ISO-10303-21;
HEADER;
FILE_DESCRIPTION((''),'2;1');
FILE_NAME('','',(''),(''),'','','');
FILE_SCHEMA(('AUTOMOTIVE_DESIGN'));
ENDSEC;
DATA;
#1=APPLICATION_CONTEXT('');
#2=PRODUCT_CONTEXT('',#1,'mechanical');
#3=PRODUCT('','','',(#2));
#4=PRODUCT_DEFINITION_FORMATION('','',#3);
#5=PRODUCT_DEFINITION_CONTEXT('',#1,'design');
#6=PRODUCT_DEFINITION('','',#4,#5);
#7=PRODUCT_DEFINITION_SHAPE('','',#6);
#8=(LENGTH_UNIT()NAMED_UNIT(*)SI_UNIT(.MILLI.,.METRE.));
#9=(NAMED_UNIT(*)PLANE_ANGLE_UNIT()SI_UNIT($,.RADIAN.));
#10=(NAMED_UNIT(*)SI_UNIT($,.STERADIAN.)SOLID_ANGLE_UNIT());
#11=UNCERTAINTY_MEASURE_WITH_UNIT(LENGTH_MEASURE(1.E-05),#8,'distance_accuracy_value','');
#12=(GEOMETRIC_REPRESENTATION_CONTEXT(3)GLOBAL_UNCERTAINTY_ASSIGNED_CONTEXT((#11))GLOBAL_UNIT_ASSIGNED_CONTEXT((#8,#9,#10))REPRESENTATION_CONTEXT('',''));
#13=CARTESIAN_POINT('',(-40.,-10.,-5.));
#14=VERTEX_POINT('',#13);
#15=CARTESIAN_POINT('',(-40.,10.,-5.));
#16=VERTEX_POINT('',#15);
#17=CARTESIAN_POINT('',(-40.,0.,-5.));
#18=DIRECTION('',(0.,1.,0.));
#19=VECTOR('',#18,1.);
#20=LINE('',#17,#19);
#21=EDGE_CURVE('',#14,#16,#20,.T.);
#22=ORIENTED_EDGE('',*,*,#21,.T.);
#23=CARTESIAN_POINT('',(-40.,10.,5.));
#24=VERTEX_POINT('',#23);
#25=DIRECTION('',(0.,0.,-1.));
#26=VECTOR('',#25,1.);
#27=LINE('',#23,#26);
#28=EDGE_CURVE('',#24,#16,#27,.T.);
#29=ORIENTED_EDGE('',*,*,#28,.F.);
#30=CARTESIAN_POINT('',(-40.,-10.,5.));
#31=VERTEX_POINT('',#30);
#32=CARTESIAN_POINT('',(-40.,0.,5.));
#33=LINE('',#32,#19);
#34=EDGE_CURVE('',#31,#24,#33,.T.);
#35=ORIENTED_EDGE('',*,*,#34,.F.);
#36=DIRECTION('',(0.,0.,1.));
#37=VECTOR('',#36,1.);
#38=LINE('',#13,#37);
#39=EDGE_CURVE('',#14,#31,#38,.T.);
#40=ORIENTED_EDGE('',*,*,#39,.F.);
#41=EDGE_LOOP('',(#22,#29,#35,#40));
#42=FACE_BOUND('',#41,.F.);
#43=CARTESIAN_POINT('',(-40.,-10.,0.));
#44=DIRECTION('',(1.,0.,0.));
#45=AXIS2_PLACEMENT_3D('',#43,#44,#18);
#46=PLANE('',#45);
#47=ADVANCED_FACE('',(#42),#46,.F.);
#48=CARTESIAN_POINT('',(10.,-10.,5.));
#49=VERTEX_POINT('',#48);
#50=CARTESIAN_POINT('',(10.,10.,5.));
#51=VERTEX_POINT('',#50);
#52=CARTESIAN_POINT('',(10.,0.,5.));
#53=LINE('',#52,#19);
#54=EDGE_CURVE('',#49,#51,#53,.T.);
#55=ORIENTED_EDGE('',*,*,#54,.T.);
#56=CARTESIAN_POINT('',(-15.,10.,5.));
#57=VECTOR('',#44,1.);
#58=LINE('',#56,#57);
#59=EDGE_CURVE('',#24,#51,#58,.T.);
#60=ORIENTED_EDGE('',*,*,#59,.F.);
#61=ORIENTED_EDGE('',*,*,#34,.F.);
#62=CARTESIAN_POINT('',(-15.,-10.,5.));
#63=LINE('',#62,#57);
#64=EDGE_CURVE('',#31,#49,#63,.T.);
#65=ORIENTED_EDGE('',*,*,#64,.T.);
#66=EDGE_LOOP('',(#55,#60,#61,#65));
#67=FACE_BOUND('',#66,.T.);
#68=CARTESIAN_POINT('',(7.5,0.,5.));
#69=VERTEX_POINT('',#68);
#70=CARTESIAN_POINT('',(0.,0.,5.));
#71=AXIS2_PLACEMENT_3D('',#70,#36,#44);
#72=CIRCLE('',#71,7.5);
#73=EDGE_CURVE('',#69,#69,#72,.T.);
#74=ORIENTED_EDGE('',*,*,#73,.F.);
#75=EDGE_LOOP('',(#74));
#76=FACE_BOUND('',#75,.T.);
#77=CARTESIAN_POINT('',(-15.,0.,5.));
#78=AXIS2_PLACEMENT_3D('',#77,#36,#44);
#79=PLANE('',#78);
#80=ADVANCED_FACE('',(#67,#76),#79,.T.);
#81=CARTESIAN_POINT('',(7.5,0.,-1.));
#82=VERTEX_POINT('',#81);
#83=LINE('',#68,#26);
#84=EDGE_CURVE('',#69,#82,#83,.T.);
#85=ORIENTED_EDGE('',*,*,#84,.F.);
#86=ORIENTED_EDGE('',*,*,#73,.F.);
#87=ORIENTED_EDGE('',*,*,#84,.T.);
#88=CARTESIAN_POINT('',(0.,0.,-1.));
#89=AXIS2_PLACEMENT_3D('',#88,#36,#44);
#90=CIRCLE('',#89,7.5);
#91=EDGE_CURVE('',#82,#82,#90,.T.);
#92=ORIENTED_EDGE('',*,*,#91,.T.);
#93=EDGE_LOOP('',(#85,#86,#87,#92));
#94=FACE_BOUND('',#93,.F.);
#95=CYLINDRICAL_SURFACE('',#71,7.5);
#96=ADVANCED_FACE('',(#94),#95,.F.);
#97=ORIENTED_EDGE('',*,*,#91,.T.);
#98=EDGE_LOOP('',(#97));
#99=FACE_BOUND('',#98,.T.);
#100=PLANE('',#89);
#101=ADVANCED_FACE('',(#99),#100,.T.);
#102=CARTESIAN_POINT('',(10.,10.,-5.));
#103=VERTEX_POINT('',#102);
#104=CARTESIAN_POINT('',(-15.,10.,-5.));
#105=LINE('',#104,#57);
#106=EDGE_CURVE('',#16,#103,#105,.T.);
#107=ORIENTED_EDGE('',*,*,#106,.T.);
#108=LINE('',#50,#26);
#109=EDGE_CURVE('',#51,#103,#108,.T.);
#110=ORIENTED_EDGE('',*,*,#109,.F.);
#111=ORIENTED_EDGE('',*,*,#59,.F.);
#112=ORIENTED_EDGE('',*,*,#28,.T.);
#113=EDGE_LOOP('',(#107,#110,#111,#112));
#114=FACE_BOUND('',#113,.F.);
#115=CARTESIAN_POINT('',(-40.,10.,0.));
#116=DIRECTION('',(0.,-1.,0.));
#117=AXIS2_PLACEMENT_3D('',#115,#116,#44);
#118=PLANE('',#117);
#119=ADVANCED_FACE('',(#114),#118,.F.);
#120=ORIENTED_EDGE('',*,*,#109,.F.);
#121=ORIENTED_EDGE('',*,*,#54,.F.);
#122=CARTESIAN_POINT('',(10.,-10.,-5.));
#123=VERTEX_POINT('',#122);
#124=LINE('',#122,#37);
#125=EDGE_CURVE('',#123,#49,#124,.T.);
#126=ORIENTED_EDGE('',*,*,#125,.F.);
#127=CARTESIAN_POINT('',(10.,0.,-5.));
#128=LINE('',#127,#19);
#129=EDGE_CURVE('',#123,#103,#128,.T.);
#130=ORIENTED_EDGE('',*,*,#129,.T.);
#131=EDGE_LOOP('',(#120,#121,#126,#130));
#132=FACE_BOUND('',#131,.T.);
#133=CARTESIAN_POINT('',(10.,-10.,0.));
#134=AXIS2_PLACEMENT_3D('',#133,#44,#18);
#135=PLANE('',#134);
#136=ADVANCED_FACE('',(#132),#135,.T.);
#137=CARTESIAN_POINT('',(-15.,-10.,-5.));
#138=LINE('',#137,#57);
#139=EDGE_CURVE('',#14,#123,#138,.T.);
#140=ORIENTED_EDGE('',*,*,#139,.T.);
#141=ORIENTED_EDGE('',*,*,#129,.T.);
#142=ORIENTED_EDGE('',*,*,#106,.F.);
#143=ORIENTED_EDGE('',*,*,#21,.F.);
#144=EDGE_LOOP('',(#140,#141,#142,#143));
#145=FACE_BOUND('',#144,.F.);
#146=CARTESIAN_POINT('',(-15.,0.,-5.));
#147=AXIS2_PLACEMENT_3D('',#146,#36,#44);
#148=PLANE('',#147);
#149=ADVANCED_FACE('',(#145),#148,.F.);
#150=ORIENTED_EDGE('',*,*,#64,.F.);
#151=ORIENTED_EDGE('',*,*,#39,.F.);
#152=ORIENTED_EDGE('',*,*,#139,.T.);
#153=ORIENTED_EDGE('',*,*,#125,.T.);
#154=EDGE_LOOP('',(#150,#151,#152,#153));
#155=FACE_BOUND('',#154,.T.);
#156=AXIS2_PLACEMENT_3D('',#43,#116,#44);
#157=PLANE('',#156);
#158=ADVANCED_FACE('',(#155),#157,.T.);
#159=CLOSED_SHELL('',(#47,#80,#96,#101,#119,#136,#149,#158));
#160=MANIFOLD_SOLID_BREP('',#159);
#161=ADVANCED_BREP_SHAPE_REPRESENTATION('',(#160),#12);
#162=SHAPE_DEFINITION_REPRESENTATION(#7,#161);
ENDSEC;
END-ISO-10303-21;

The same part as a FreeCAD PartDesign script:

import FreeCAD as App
import Part
import Sketcher
from FreeCAD import Vector

doc = App.newDocument("Part")
params = doc.addObject("Spreadsheet::Sheet", "Params")
for row, (alias, value) in enumerate([
    ("sketch1_width", "50 mm"),
    ("sketch1_height", "20 mm"),
    ("pad1_length", "10 mm"),
    ("sketch2_diameter", "15 mm"),
    ("pocket1_length", "6 mm"),
], start=1):
    params.set(f"A{row}", alias)
    params.set(f"B{row}", "=" + value)
    params.setAlias(f"B{row}", alias)

body = doc.addObject("PartDesign::Body", "Body")

# Sketch on XY plane
sketch1 = body.newObject("Sketcher::SketchObject", "Sketch")
sketch1.AttachmentSupport = (doc.getObject("XY_Plane"), [""])
sketch1.MapMode = "FlatFace"
sketch1.addGeometry([
    Part.LineSegment(Vector(-40, 10, 0), Vector(-40, -10, 0)),
    Part.LineSegment(Vector(-40, -10, 0), Vector(10, -10, 0)),
    Part.LineSegment(Vector(10, -10, 0), Vector(10, 10, 0)),
    Part.LineSegment(Vector(10, 10, 0), Vector(-40, 10, 0)),
], False)
sketch1.addConstraint([
    Sketcher.Constraint("Coincident", 0, 2, 1, 1),
    Sketcher.Constraint("Coincident", 1, 2, 2, 1),
    Sketcher.Constraint("Coincident", 2, 2, 3, 1),
    Sketcher.Constraint("Coincident", 3, 2, 0, 1),
    Sketcher.Constraint("Vertical", 0),
    Sketcher.Constraint("Horizontal", 1),
    Sketcher.Constraint("Vertical", 2),
    Sketcher.Constraint("Horizontal", 3),
    Sketcher.Constraint("DistanceX", 1, 1, 1, 2, 50.0),
    Sketcher.Constraint("DistanceY", 0, 2, 0, 1, 20.0),
    Sketcher.Constraint("DistanceX", 0, 2, -1, 1, 40.0),
    Sketcher.Constraint("DistanceY", 0, 2, -1, 1, 10.0),
])
sketch1.setExpression("Constraints[8]", "Params.sketch1_width")
sketch1.setExpression("Constraints[9]", "Params.sketch1_height")
pad1 = body.newObject("PartDesign::Pad", "Pad")
pad1.Profile = sketch1
pad1.setExpression("Length", "Params.pad1_length")
pad1.Midplane = True

# Sketch on XY plane
sketch2 = body.newObject("Sketcher::SketchObject", "Sketch001")
sketch2.AttachmentSupport = (doc.getObject("XY_Plane"), [""])
sketch2.MapMode = "FlatFace"
sketch2.AttachmentOffset = App.Placement(Vector(0, 0, 5), App.Rotation())
sketch2.addGeometry(Part.Circle(Vector(0, 0, 0), Vector(0, 0, 1), 7.5), False)
sketch2.addConstraint([
    Sketcher.Constraint("Coincident", 0, 3, -1, 1),
    Sketcher.Constraint("Diameter", 0, 15.0),
])
sketch2.setExpression("Constraints[1]", "Params.sketch2_diameter")
pocket1 = body.newObject("PartDesign::Pocket", "Pocket")
pocket1.Profile = sketch2
pocket1.setExpression("Length", "Params.pocket1_length")

doc.recompute()
